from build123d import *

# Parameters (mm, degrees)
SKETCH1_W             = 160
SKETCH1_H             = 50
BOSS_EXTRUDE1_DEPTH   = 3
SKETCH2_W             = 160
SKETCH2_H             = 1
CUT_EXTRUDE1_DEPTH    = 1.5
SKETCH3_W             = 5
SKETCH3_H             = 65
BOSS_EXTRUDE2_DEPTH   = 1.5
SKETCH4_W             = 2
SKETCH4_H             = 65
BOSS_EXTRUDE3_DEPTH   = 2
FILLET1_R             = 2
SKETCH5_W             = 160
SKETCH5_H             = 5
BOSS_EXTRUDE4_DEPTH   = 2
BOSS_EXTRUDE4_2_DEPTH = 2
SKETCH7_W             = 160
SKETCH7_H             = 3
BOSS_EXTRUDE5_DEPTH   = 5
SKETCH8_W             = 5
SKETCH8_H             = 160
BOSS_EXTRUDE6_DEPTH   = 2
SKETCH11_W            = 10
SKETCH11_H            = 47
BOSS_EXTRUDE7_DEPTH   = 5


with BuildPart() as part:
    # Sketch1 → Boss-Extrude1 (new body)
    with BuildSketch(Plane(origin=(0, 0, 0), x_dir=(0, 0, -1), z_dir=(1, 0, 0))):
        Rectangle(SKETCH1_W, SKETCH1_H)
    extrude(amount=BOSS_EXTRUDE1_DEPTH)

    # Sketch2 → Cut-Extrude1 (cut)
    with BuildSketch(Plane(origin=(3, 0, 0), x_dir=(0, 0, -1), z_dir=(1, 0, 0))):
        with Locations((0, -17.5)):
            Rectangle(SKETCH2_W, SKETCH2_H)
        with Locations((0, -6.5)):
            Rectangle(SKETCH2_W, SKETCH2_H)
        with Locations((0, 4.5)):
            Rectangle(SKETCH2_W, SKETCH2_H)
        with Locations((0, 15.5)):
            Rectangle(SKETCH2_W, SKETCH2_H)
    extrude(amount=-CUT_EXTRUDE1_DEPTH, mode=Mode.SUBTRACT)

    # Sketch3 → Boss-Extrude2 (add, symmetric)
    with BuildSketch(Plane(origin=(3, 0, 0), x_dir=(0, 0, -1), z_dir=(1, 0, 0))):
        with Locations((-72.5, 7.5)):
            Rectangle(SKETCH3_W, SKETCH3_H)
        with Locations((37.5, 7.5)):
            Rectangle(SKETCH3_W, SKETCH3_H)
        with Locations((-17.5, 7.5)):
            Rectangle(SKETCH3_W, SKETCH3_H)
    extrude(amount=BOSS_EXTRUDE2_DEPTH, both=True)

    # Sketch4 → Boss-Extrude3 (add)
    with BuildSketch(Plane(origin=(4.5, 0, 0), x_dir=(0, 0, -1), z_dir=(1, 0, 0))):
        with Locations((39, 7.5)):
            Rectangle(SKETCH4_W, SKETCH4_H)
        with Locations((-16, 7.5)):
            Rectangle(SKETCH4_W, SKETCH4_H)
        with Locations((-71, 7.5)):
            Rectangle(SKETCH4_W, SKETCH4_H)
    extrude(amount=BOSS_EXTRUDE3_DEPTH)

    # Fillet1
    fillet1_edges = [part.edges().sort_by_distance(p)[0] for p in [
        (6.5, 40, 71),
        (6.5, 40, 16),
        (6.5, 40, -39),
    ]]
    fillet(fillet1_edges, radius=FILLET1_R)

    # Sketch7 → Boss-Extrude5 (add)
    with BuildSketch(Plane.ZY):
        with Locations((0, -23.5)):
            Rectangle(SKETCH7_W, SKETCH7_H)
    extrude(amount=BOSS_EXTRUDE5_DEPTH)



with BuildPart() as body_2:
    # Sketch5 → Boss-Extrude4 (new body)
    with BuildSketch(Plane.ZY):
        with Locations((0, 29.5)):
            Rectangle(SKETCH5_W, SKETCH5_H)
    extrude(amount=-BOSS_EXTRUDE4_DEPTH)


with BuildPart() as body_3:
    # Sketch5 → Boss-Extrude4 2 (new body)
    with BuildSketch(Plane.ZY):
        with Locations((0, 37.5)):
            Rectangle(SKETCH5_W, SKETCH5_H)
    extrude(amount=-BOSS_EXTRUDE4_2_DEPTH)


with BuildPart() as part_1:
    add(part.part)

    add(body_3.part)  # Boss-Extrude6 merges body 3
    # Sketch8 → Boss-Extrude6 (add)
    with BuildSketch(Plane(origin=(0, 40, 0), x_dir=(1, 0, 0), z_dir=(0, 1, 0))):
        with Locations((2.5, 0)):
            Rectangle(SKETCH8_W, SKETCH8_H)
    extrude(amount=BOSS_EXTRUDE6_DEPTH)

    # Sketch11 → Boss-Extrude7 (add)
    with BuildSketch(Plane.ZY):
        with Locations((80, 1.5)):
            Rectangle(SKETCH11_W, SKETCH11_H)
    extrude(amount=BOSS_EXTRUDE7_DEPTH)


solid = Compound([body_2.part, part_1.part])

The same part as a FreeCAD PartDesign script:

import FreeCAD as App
import Part
import Sketcher

V = App.Vector
Q = App.Units.Quantity


def edges_at(feature, points):
    """Names of the edges that pass closest to the given points."""
    edges = feature.Shape.Edges
    near = lambda p: min(range(len(edges)), key=lambda i: edges[i].distToShape(Part.Vertex(*p))[0])
    return sorted({f"Edge{near(p) + 1}" for p in points})

doc = App.newDocument("Part")
body = doc.addObject("PartDesign::Body", "Body")

# Sketch on YZ plane
sketch1 = body.newObject("Sketcher::SketchObject", "Sketch")
sketch1.AttachmentSupport = (doc.getObject("YZ_Plane"), [""])
sketch1.MapMode = "FlatFace"
sketch1.addGeometry(Part.LineSegment(V(25, 80, 0), V(-25, 80, 0)), False)
sketch1.addGeometry(Part.LineSegment(V(-25, 80, 0), V(-25, -80, 0)), False)
sketch1.addGeometry(Part.LineSegment(V(-25, -80, 0), V(25, -80, 0)), False)
sketch1.addGeometry(Part.LineSegment(V(25, -80, 0), V(25, 80, 0)), False)
sketch1.addConstraint(Sketcher.Constraint("Coincident", 0, 2, 1, 1))
sketch1.addConstraint(Sketcher.Constraint("Coincident", 1, 2, 2, 1))
sketch1.addConstraint(Sketcher.Constraint("Coincident", 2, 2, 3, 1))
sketch1.addConstraint(Sketcher.Constraint("Coincident", 3, 2, 0, 1))
sketch1.addConstraint(Sketcher.Constraint("Horizontal", 0))
sketch1.addConstraint(Sketcher.Constraint("Vertical", 1))
sketch1.addConstraint(Sketcher.Constraint("Horizontal", 2))
sketch1.addConstraint(Sketcher.Constraint("Vertical", 3))
sketch1.addConstraint(Sketcher.Constraint("Symmetric", 0, 2, 2, 2, -1, 1))
sketch1.addConstraint(Sketcher.Constraint("DistanceX", 0, 2, 0, 1, Q("50 mm")))
sketch1.addConstraint(Sketcher.Constraint("DistanceY", 1, 2, 1, 1, Q("160 mm")))
pad1 = body.newObject("PartDesign::Pad", "Pad")
pad1.Profile = sketch1
pad1.Length = 3

# Sketch on YZ plane
sketch2 = body.newObject("Sketcher::SketchObject", "Sketch001")
sketch2.AttachmentSupport = (doc.getObject("YZ_Plane"), [""])
sketch2.MapMode = "FlatFace"
sketch2.AttachmentOffset = App.Placement(V(0, 0, 3), App.Rotation())
sketch2.addGeometry(Part.LineSegment(V(-17, 80, 0), V(-18, 80, 0)), False)
sketch2.addGeometry(Part.LineSegment(V(-18, 80, 0), V(-18, -80, 0)), False)
sketch2.addGeometry(Part.LineSegment(V(-18, -80, 0), V(-17, -80, 0)), False)
sketch2.addGeometry(Part.LineSegment(V(-17, -80, 0), V(-17, 80, 0)), False)
sketch2.addGeometry(Part.LineSegment(V(-6, 80, 0), V(-7, 80, 0)), False)
sketch2.addGeometry(Part.LineSegment(V(-7, 80, 0), V(-7, -80, 0)), False)
sketch2.addGeometry(Part.LineSegment(V(-7, -80, 0), V(-6, -80, 0)), False)
sketch2.addGeometry(Part.LineSegment(V(-6, -80, 0), V(-6, 80, 0)), False)
sketch2.addGeometry(Part.LineSegment(V(5, 80, 0), V(4, 80, 0)), False)
sketch2.addGeometry(Part.LineSegment(V(4, 80, 0), V(4, -80, 0)), False)
sketch2.addGeometry(Part.LineSegment(V(4, -80, 0), V(5, -80, 0)), False)
sketch2.addGeometry(Part.LineSegment(V(5, -80, 0), V(5, 80, 0)), False)
sketch2.addGeometry(Part.LineSegment(V(16, 80, 0), V(15, 80, 0)), False)
sketch2.addGeometry(Part.LineSegment(V(15, 80, 0), V(15, -80, 0)), False)
sketch2.addGeometry(Part.LineSegment(V(15, -80, 0), V(16, -80, 0)), False)
sketch2.addGeometry(Part.LineSegment(V(16, -80, 0), V(16, 80, 0)), False)
sketch2.addConstraint(Sketcher.Constraint("Coincident", 0, 2, 1, 1))
sketch2.addConstraint(Sketcher.Constraint("Coincident", 1, 2, 2, 1))
sketch2.addConstraint(Sketcher.Constraint("Coincident", 2, 2, 3, 1))
sketch2.addConstraint(Sketcher.Constraint("Coincident", 3, 2, 0, 1))
sketch2.addConstraint(Sketcher.Constraint("Coincident", 4, 2, 5, 1))
sketch2.addConstraint(Sketcher.Constraint("Coincident", 5, 2, 6, 1))
sketch2.addConstraint(Sketcher.Constraint("Coincident", 6, 2, 7, 1))
sketch2.addConstraint(Sketcher.Constraint("Coincident", 7, 2, 4, 1))
sketch2.addConstraint(Sketcher.Constraint("Coincident", 8, 2, 9, 1))
sketch2.addConstraint(Sketcher.Constraint("Coincident", 9, 2, 10, 1))
sketch2.addConstraint(Sketcher.Constraint("Coincident", 10, 2, 11, 1))
sketch2.addConstraint(Sketcher.Constraint("Coincident", 11, 2, 8, 1))
sketch2.addConstraint(Sketcher.Constraint("Coincident", 12, 2, 13, 1))
sketch2.addConstraint(Sketcher.Constraint("Coincident", 13, 2, 14, 1))
sketch2.addConstraint(Sketcher.Constraint("Coincident", 14, 2, 15, 1))
sketch2.addConstraint(Sketcher.Constraint("Coincident", 15, 2, 12, 1))
sketch2.addConstraint(Sketcher.Constraint("Horizontal", 0))
sketch2.addConstraint(Sketcher.Constraint("Vertical", 1))
sketch2.addConstraint(Sketcher.Constraint("Horizontal", 2))
sketch2.addConstraint(Sketcher.Constraint("Vertical", 3))
sketch2.addConstraint(Sketcher.Constraint("Horizontal", 4))
sketch2.addConstraint(Sketcher.Constraint("Vertical", 5))
sketch2.addConstraint(Sketcher.Constraint("Horizontal", 6))
sketch2.addConstraint(Sketcher.Constraint("Vertical", 7))
sketch2.addConstraint(Sketcher.Constraint("Horizontal", 8))
sketch2.addConstraint(Sketcher.Constraint("Vertical", 9))
sketch2.addConstraint(Sketcher.Constraint("Horizontal", 10))
sketch2.addConstraint(Sketcher.Constraint("Vertical", 11))
sketch2.addConstraint(Sketcher.Constraint("Horizontal", 12))
sketch2.addConstraint(Sketcher.Constraint("Vertical", 13))
sketch2.addConstraint(Sketcher.Constraint("Horizontal", 14))
sketch2.addConstraint(Sketcher.Constraint("Vertical", 15))
sketch2.addConstraint(Sketcher.Constraint("Horizontal", 3, 2, 4, 2))
sketch2.addConstraint(Sketcher.Constraint("Horizontal", 2, 2, 5, 2))
sketch2.addConstraint(Sketcher.Constraint("Horizontal", 7, 2, 8, 2))
sketch2.addConstraint(Sketcher.Constraint("Horizontal", 6, 2, 9, 2))
sketch2.addConstraint(Sketcher.Constraint("Horizontal", 11, 2, 12, 2))
sketch2.addConstraint(Sketcher.Constraint("Horizontal", 10, 2, 13, 2))
sketch2.addConstraint(Sketcher.Constraint("Equal", 2, 4))
sketch2.addConstraint(Sketcher.Constraint("Equal", 6, 8))
sketch2.addConstraint(Sketcher.Constraint("Equal", 10, 12))
sketch2.addConstraint(Sketcher.Constraint("DistanceX", 0, 2, 0, 1, Q("1 mm")))
sketch2.addConstraint(Sketcher.Constraint("DistanceY", 1, 2, 1, 1, Q("160 mm")))
sketch2.addConstraint(Sketcher.Constraint("DistanceX", 0, 2, -1, 1, Q("18 mm")))
sketch2.addConstraint(Sketcher.Constraint("DistanceY", -1, 1, 0, 2, Q("80 mm")))
sketch2.addConstraint(Sketcher.Constraint("DistanceX", 4, 2, -1, 1, Q("7 mm")))
sketch2.addConstraint(Sketcher.Constraint("DistanceX", -1, 1, 8, 2, Q("4 mm")))
sketch2.addConstraint(Sketcher.Constraint("DistanceX", -1, 1, 12, 2, Q("15 mm")))
pocket1 = body.newObject("PartDesign::Pocket", "Pocket")
pocket1.Profile = sketch2
pocket1.Length = 1.5

# Sketch on YZ plane
sketch3 = body.newObject("Sketcher::SketchObject", "Sketch002")
sketch3.AttachmentSupport = (doc.getObject("YZ_Plane"), [""])
sketch3.MapMode = "FlatFace"
sketch3.AttachmentOffset = App.Placement(V(0, 0, 3), App.Rotation())
sketch3.addGeometry(Part.LineSegment(V(40, 75, 0), V(-25, 75, 0)), False)
sketch3.addGeometry(Part.LineSegment(V(-25, 75, 0), V(-25, 70, 0)), False)
sketch3.addGeometry(Part.LineSegment(V(-25, 70, 0), V(40, 70, 0)), False)
sketch3.addGeometry(Part.LineSegment(V(40, 70, 0), V(40, 75, 0)), False)
sketch3.addGeometry(Part.LineSegment(V(40, -35, 0), V(-25, -35, 0)), False)
sketch3.addGeometry(Part.LineSegment(V(-25, -35, 0), V(-25, -40, 0)), False)
sketch3.addGeometry(Part.LineSegment(V(-25, -40, 0), V(40, -40, 0)), False)
sketch3.addGeometry(Part.LineSegment(V(40, -40, 0), V(40, -35, 0)), False)
sketch3.addGeometry(Part.LineSegment(V(40, 20, 0), V(-25, 20, 0)), False)
sketch3.addGeometry(Part.LineSegment(V(-25, 20, 0), V(-25, 15, 0)), False)
sketch3.addGeometry(Part.LineSegment(V(-25, 15, 0), V(40, 15, 0)), False)
sketch3.addGeometry(Part.LineSegment(V(40, 15, 0), V(40, 20, 0)), False)
sketch3.addConstraint(Sketcher.Constraint("Coincident", 0, 2, 1, 1))
sketch3.addConstraint(Sketcher.Constraint("Coincident", 1, 2, 2, 1))
sketch3.addConstraint(Sketcher.Constraint("Coincident", 2, 2, 3, 1))
sketch3.addConstraint(Sketcher.Constraint("Coincident", 3, 2, 0, 1))
sketch3.addConstraint(Sketcher.Constraint("Coincident", 4, 2, 5, 1))
sketch3.addConstraint(Sketcher.Constraint("Coincident", 5, 2, 6, 1))
sketch3.addConstraint(Sketcher.Constraint("Coincident", 6, 2, 7, 1))
sketch3.addConstraint(Sketcher.Constraint("Coincident", 7, 2, 4, 1))
sketch3.addConstraint(Sketcher.Constraint("Coincident", 8, 2, 9, 1))
sketch3.addConstraint(Sketcher.Constraint("Coincident", 9, 2, 10, 1))
sketch3.addConstraint(Sketcher.Constraint("Coincident", 10, 2, 11, 1))
sketch3.addConstraint(Sketcher.Constraint("Coincident", 11, 2, 8, 1))
sketch3.addConstraint(Sketcher.Constraint("Horizontal", 0))
sketch3.addConstraint(Sketcher.Constraint("Vertical", 1))
sketch3.addConstraint(Sketcher.Constraint("Horizontal", 2))
sketch3.addConstraint(Sketcher.Constraint("Vertical", 3))
sketch3.addConstraint(Sketcher.Constraint("Horizontal", 4))
sketch3.addConstraint(Sketcher.Constraint("Vertical", 5))
sketch3.addConstraint(Sketcher.Constraint("Horizontal", 6))
sketch3.addConstraint(Sketcher.Constraint("Vertical", 7))
sketch3.addConstraint(Sketcher.Constraint("Horizontal", 8))
sketch3.addConstraint(Sketcher.Constraint("Vertical", 9))
sketch3.addConstraint(Sketcher.Constraint("Horizontal", 10))
sketch3.addConstraint(Sketcher.Constraint("Vertical", 11))
sketch3.addConstraint(Sketcher.Constraint("Vertical", 1, 2, 4, 2))
sketch3.addConstraint(Sketcher.Constraint("Vertical", 3, 2, 6, 2))
sketch3.addConstraint(Sketcher.Constraint("Vertical", 5, 2, 8, 2))
sketch3.addConstraint(Sketcher.Constraint("Vertical", 7, 2, 10, 2))
sketch3.addConstraint(Sketcher.Constraint("Equal", 3, 5))
sketch3.addConstraint(Sketcher.Constraint("Equal", 7, 9))
sketch3.addConstraint(Sketcher.Constraint("DistanceX", 0, 2, 0, 1, Q("65 mm")))
sketch3.addConstraint(Sketcher.Constraint("DistanceY", 1, 2, 1, 1, Q("5 mm")))
sketch3.addConstraint(Sketcher.Constraint("DistanceX", 0, 2, -1, 1, Q("25 mm")))
sketch3.addConstraint(Sketcher.Constraint("DistanceY", -1, 1, 0, 2, Q("75 mm")))
sketch3.addConstraint(Sketcher.Constraint("DistanceY", 4, 2, -1, 1, Q("35 mm")))
sketch3.addConstraint(Sketcher.Constraint("DistanceY", -1, 1, 8, 2, Q("20 mm")))
pad2 = body.newObject("PartDesign::Pad", "Pad001")
pad2.Profile = sketch3
pad2.Length = 3
pad2.Midplane = True

# Sketch on YZ plane
sketch4 = body.newObject("Sketcher::SketchObject", "Sketch003")
sketch4.AttachmentSupport = (doc.getObject("YZ_Plane"), [""])
sketch4.MapMode = "FlatFace"
sketch4.AttachmentOffset = App.Placement(V(0, 0, 4.5), App.Rotation())
sketch4.addGeometry(Part.LineSegment(V(40, -38, 0), V(-25, -38, 0)), False)
sketch4.addGeometry(Part.LineSegment(V(-25, -38, 0), V(-25, -40, 0)), False)
sketch4.addGeometry(Part.LineSegment(V(-25, -40, 0), V(40, -40, 0)), False)
sketch4.addGeometry(Part.LineSegment(V(40, -40, 0), V(40, -38, 0)), False)
sketch4.addGeometry(Part.LineSegment(V(40, 17, 0), V(-25, 17, 0)), False)
sketch4.addGeometry(Part.LineSegment(V(-25, 17, 0), V(-25, 15, 0)), False)
sketch4.addGeometry(Part.LineSegment(V(-25, 15, 0), V(40, 15, 0)), False)
sketch4.addGeometry(Part.LineSegment(V(40, 15, 0), V(40, 17, 0)), False)
sketch4.addGeometry(Part.LineSegment(V(40, 72, 0), V(-25, 72, 0)), False)
sketch4.addGeometry(Part.LineSegment(V(-25, 72, 0), V(-25, 70, 0)), False)
sketch4.addGeometry(Part.LineSegment(V(-25, 70, 0), V(40, 70, 0)), False)
sketch4.addGeometry(Part.LineSegment(V(40, 70, 0), V(40, 72, 0)), False)
sketch4.addConstraint(Sketcher.Constraint("Coincident", 0, 2, 1, 1))
sketch4.addConstraint(Sketcher.Constraint("Coincident", 1, 2, 2, 1))
sketch4.addConstraint(Sketcher.Constraint("Coincident", 2, 2, 3, 1))
sketch4.addConstraint(Sketcher.Constraint("Coincident", 3, 2, 0, 1))
sketch4.addConstraint(Sketcher.Constraint("Coincident", 4, 2, 5, 1))
sketch4.addConstraint(Sketcher.Constraint("Coincident", 5, 2, 6, 1))
sketch4.addConstraint(Sketcher.Constraint("Coincident", 6, 2, 7, 1))
sketch4.addConstraint(Sketcher.Constraint("Coincident", 7, 2, 4, 1))
sketch4.addConstraint(Sketcher.Constraint("Coincident", 8, 2, 9, 1))
sketch4.addConstraint(Sketcher.Constraint("Coincident", 9, 2, 10, 1))
sketch4.addConstraint(Sketcher.Constraint("Coincident", 10, 2, 11, 1))
sketch4.addConstraint(Sketcher.Constraint("Coincident", 11, 2, 8, 1))
sketch4.addConstraint(Sketcher.Constraint("Horizontal", 0))
sketch4.addConstraint(Sketcher.Constraint("Vertical", 1))
sketch4.addConstraint(Sketcher.Constraint("Horizontal", 2))
sketch4.addConstraint(Sketcher.Constraint("Vertical", 3))
sketch4.addConstraint(Sketcher.Constraint("Horizontal", 4))
sketch4.addConstraint(Sketcher.Constraint("Vertical", 5))
sketch4.addConstraint(Sketcher.Constraint("Horizontal", 6))
sketch4.addConstraint(Sketcher.Constraint("Vertical", 7))
sketch4.addConstraint(Sketcher.Constraint("Horizontal", 8))
sketch4.addConstraint(Sketcher.Constraint("Vertical", 9))
sketch4.addConstraint(Sketcher.Constraint("Horizontal", 10))
sketch4.addConstraint(Sketcher.Constraint("Vertical", 11))
sketch4.addConstraint(Sketcher.Constraint("Vertical", 1, 2, 4, 2))
sketch4.addConstraint(Sketcher.Constraint("Vertical", 3, 2, 6, 2))
sketch4.addConstraint(Sketcher.Constraint("Vertical", 5, 2, 8, 2))
sketch4.addConstraint(Sketcher.Constraint("Vertical", 7, 2, 10, 2))
sketch4.addConstraint(Sketcher.Constraint("Equal", 3, 5))
sketch4.addConstraint(Sketcher.Constraint("Equal", 7, 9))
sketch4.addConstraint(Sketcher.Constraint("DistanceX", 0, 2, 0, 1, Q("65 mm")))
sketch4.addConstraint(Sketcher.Constraint("DistanceY", 1, 2, 1, 1, Q("2 mm")))
sketch4.addConstraint(Sketcher.Constraint("DistanceX", 0, 2, -1, 1, Q("25 mm")))
sketch4.addConstraint(Sketcher.Constraint("DistanceY", 0, 2, -1, 1, Q("38 mm")))
sketch4.addConstraint(Sketcher.Constraint("DistanceY", -1, 1, 4, 2, Q("17 mm")))
sketch4.addConstraint(Sketcher.Constraint("DistanceY", -1, 1, 8, 2, Q("72 mm")))
pad3 = body.newObject("PartDesign::Pad", "Pad002")
pad3.Profile = sketch4
pad3.Length = 2
doc.recompute()

fillet = body.newObject("PartDesign::Fillet", "Fillet")
fillet.Base = (pad3, edges_at(pad3, [(6.5, 40, 71), (6.5, 40, 16), (6.5, 40, -39)]))
fillet.Radius = 2

# Sketch on YZ plane
sketch5 = body.newObject("Sketcher::SketchObject", "Sketch004")
sketch5.AttachmentSupport = (doc.getObject("YZ_Plane"), [""])
sketch5.MapMode = "FlatFace"
sketch5.addGeometry(Part.LineSegment(V(-22, -80, 0), V(-25, -80, 0)), False)
sketch5.addGeometry(Part.LineSegment(V(-25, -80, 0), V(-25, 80, 0)), False)
sketch5.addGeometry(Part.LineSegment(V(-25, 80, 0), V(-22, 80, 0)), False)
sketch5.addGeometry(Part.LineSegment(V(-22, 80, 0), V(-22, -80, 0)), False)
sketch5.addConstraint(Sketcher.Constraint("Coincident", 0, 2, 1, 1))
sketch5.addConstraint(Sketcher.Constraint("Coincident", 1, 2, 2, 1))
sketch5.addConstraint(Sketcher.Constraint("Coincident", 2, 2, 3, 1))
sketch5.addConstraint(Sketcher.Constraint("Coincident", 3, 2, 0, 1))
sketch5.addConstraint(Sketcher.Constraint("Horizontal", 0))
sketch5.addConstraint(Sketcher.Constraint("Vertical", 1))
sketch5.addConstraint(Sketcher.Constraint("Horizontal", 2))
sketch5.addConstraint(Sketcher.Constraint("Vertical", 3))
sketch5.addConstraint(Sketcher.Constraint("DistanceX", 0, 2, 0, 1, Q("3 mm")))
sketch5.addConstraint(Sketcher.Constraint("DistanceY", 1, 1, 1, 2, Q("160 mm")))
sketch5.addConstraint(Sketcher.Constraint("DistanceX", 0, 2, -1, 1, Q("25 mm")))
sketch5.addConstraint(Sketcher.Constraint("DistanceY", 0, 2, -1, 1, Q("80 mm")))
pad4 = body.newObject("PartDesign::Pad", "Pad003")
pad4.Profile = sketch5
pad4.Length = 5
pad4.Reversed = True
body2 = doc.addObject("PartDesign::Body", "Body001")

# Sketch on YZ plane
sketch6 = body2.newObject("Sketcher::SketchObject", "Sketch005")
sketch6.AttachmentSupport = (doc.getObject("YZ_Plane001"), [""])
sketch6.MapMode = "FlatFace"
sketch6.addGeometry(Part.LineSegment(V(32, -80, 0), V(27, -80, 0)), False)
sketch6.addGeometry(Part.LineSegment(V(27, -80, 0), V(27, 80, 0)), False)
sketch6.addGeometry(Part.LineSegment(V(27, 80, 0), V(32, 80, 0)), False)
sketch6.addGeometry(Part.LineSegment(V(32, 80, 0), V(32, -80, 0)), False)
sketch6.addConstraint(Sketcher.Constraint("Coincident", 0, 2, 1, 1))
sketch6.addConstraint(Sketcher.Constraint("Coincident", 1, 2, 2, 1))
sketch6.addConstraint(Sketcher.Constraint("Coincident", 2, 2, 3, 1))
sketch6.addConstraint(Sketcher.Constraint("Coincident", 3, 2, 0, 1))
sketch6.addConstraint(Sketcher.Constraint("Horizontal", 0))
sketch6.addConstraint(Sketcher.Constraint("Vertical", 1))
sketch6.addConstraint(Sketcher.Constraint("Horizontal", 2))
sketch6.addConstraint(Sketcher.Constraint("Vertical", 3))
sketch6.addConstraint(Sketcher.Constraint("DistanceX", 0, 2, 0, 1, Q("5 mm")))
sketch6.addConstraint(Sketcher.Constraint("DistanceY", 1, 1, 1, 2, Q("160 mm")))
sketch6.addConstraint(Sketcher.Constraint("DistanceX", -1, 1, 0, 2, Q("27 mm")))
sketch6.addConstraint(Sketcher.Constraint("DistanceY", 0, 2, -1, 1, Q("80 mm")))
pad5 = body2.newObject("PartDesign::Pad", "Pad004")
pad5.Profile = sketch6
pad5.Length = 2
body3 = doc.addObject("PartDesign::Body", "Body002")

# Sketch on YZ plane
sketch7 = body3.newObject("Sketcher::SketchObject", "Sketch006")
sketch7.AttachmentSupport = (doc.getObject("YZ_Plane002"), [""])
sketch7.MapMode = "FlatFace"
sketch7.addGeometry(Part.LineSegment(V(40, -80, 0), V(35, -80, 0)), False)
sketch7.addGeometry(Part.LineSegment(V(35, -80, 0), V(35, 80, 0)), False)
sketch7.addGeometry(Part.LineSegment(V(35, 80, 0), V(40, 80, 0)), False)
sketch7.addGeometry(Part.LineSegment(V(40, 80, 0), V(40, -80, 0)), False)
sketch7.addConstraint(Sketcher.Constraint("Coincident", 0, 2, 1, 1))
sketch7.addConstraint(Sketcher.Constraint("Coincident", 1, 2, 2, 1))
sketch7.addConstraint(Sketcher.Constraint("Coincident", 2, 2, 3, 1))
sketch7.addConstraint(Sketcher.Constraint("Coincident", 3, 2, 0, 1))
sketch7.addConstraint(Sketcher.Constraint("Horizontal", 0))
sketch7.addConstraint(Sketcher.Constraint("Vertical", 1))
sketch7.addConstraint(Sketcher.Constraint("Horizontal", 2))
sketch7.addConstraint(Sketcher.Constraint("Vertical", 3))
sketch7.addConstraint(Sketcher.Constraint("DistanceX", 0, 2, 0, 1, Q("5 mm")))
sketch7.addConstraint(Sketcher.Constraint("DistanceY", 1, 1, 1, 2, Q("160 mm")))
sketch7.addConstraint(Sketcher.Constraint("DistanceX", -1, 1, 0, 2, Q("35 mm")))
sketch7.addConstraint(Sketcher.Constraint("DistanceY", 0, 2, -1, 1, Q("80 mm")))
pad6 = body3.newObject("PartDesign::Pad", "Pad005")
pad6.Profile = sketch7
pad6.Length = 2
doc.recompute()

boolean = body.newObject("PartDesign::Boolean", "Boolean")
boolean.Type = "Fuse"
boolean.addObjects([body3])

# Sketch on XZ plane
sketch8 = body.newObject("Sketcher::SketchObject", "Sketch007")
sketch8.AttachmentSupport = (doc.getObject("XZ_Plane"), [""])
sketch8.MapMode = "FlatFace"
sketch8.AttachmentOffset = App.Placement(V(0, 0, -40), App.Rotation())
sketch8.addGeometry(Part.LineSegment(V(0, -80, 0), V(0, 80, 0)), False)
sketch8.addGeometry(Part.LineSegment(V(0, 80, 0), V(5, 80, 0)), False)
sketch8.addGeometry(Part.LineSegment(V(5, 80, 0), V(5, -80, 0)), False)
sketch8.addGeometry(Part.LineSegment(V(5, -80, 0), V(0, -80, 0)), False)
sketch8.addConstraint(Sketcher.Constraint("Coincident", 0, 2, 1, 1))
sketch8.addConstraint(Sketcher.Constraint("Coincident", 1, 2, 2, 1))
sketch8.addConstraint(Sketcher.Constraint("Coincident", 2, 2, 3, 1))
sketch8.addConstraint(Sketcher.Constraint("Coincident", 3, 2, 0, 1))
sketch8.addConstraint(Sketcher.Constraint("Vertical", 0))
sketch8.addConstraint(Sketcher.Constraint("Horizontal", 1))
sketch8.addConstraint(Sketcher.Constraint("Vertical", 2))
sketch8.addConstraint(Sketcher.Constraint("Horizontal", 3))
sketch8.addConstraint(Sketcher.Constraint("Symmetric", 0, 2, 3, 2, -1, 1))
sketch8.addConstraint(Sketcher.Constraint("DistanceX", 1, 1, 1, 2, Q("5 mm")))
sketch8.addConstraint(Sketcher.Constraint("DistanceY", 0, 1, 0, 2, Q("160 mm")))
pad7 = body.newObject("PartDesign::Pad", "Pad006")
pad7.Profile = sketch8
pad7.Length = 2
pad7.Reversed = True

# Sketch on YZ plane
sketch9 = body.newObject("Sketcher::SketchObject", "Sketch008")
sketch9.AttachmentSupport = (doc.getObject("YZ_Plane"), [""])
sketch9.MapMode = "FlatFace"
sketch9.addGeometry(Part.LineSegment(V(25, 75, 0), V(-22, 75, 0)), False)
sketch9.addGeometry(Part.LineSegment(V(-22, 75, 0), V(-22, 85, 0)), False)
sketch9.addGeometry(Part.LineSegment(V(-22, 85, 0), V(25, 85, 0)), False)
sketch9.addGeometry(Part.LineSegment(V(25, 85, 0), V(25, 75, 0)), False)
sketch9.addConstraint(Sketcher.Constraint("Coincident", 0, 2, 1, 1))
sketch9.addConstraint(Sketcher.Constraint("Coincident", 1, 2, 2, 1))
sketch9.addConstraint(Sketcher.Constraint("Coincident", 2, 2, 3, 1))
sketch9.addConstraint(Sketcher.Constraint("Coincident", 3, 2, 0, 1))
sketch9.addConstraint(Sketcher.Constraint("Horizontal", 0))
sketch9.addConstraint(Sketcher.Constraint("Vertical", 1))
sketch9.addConstraint(Sketcher.Constraint("Horizontal", 2))
sketch9.addConstraint(Sketcher.Constraint("Vertical", 3))
sketch9.addConstraint(Sketcher.Constraint("DistanceX", 0, 2, 0, 1, Q("47 mm")))
sketch9.addConstraint(Sketcher.Constraint("DistanceY", 1, 1, 1, 2, Q("10 mm")))
sketch9.addConstraint(Sketcher.Constraint("DistanceX", 0, 2, -1, 1, Q("22 mm")))
sketch9.addConstraint(Sketcher.Constraint("DistanceY", -1, 1, 0, 2, Q("75 mm")))
pad8 = body.newObject("PartDesign::Pad", "Pad007")
pad8.Profile = sketch9
pad8.Length = 5
pad8.Reversed = True

doc.recompute()
